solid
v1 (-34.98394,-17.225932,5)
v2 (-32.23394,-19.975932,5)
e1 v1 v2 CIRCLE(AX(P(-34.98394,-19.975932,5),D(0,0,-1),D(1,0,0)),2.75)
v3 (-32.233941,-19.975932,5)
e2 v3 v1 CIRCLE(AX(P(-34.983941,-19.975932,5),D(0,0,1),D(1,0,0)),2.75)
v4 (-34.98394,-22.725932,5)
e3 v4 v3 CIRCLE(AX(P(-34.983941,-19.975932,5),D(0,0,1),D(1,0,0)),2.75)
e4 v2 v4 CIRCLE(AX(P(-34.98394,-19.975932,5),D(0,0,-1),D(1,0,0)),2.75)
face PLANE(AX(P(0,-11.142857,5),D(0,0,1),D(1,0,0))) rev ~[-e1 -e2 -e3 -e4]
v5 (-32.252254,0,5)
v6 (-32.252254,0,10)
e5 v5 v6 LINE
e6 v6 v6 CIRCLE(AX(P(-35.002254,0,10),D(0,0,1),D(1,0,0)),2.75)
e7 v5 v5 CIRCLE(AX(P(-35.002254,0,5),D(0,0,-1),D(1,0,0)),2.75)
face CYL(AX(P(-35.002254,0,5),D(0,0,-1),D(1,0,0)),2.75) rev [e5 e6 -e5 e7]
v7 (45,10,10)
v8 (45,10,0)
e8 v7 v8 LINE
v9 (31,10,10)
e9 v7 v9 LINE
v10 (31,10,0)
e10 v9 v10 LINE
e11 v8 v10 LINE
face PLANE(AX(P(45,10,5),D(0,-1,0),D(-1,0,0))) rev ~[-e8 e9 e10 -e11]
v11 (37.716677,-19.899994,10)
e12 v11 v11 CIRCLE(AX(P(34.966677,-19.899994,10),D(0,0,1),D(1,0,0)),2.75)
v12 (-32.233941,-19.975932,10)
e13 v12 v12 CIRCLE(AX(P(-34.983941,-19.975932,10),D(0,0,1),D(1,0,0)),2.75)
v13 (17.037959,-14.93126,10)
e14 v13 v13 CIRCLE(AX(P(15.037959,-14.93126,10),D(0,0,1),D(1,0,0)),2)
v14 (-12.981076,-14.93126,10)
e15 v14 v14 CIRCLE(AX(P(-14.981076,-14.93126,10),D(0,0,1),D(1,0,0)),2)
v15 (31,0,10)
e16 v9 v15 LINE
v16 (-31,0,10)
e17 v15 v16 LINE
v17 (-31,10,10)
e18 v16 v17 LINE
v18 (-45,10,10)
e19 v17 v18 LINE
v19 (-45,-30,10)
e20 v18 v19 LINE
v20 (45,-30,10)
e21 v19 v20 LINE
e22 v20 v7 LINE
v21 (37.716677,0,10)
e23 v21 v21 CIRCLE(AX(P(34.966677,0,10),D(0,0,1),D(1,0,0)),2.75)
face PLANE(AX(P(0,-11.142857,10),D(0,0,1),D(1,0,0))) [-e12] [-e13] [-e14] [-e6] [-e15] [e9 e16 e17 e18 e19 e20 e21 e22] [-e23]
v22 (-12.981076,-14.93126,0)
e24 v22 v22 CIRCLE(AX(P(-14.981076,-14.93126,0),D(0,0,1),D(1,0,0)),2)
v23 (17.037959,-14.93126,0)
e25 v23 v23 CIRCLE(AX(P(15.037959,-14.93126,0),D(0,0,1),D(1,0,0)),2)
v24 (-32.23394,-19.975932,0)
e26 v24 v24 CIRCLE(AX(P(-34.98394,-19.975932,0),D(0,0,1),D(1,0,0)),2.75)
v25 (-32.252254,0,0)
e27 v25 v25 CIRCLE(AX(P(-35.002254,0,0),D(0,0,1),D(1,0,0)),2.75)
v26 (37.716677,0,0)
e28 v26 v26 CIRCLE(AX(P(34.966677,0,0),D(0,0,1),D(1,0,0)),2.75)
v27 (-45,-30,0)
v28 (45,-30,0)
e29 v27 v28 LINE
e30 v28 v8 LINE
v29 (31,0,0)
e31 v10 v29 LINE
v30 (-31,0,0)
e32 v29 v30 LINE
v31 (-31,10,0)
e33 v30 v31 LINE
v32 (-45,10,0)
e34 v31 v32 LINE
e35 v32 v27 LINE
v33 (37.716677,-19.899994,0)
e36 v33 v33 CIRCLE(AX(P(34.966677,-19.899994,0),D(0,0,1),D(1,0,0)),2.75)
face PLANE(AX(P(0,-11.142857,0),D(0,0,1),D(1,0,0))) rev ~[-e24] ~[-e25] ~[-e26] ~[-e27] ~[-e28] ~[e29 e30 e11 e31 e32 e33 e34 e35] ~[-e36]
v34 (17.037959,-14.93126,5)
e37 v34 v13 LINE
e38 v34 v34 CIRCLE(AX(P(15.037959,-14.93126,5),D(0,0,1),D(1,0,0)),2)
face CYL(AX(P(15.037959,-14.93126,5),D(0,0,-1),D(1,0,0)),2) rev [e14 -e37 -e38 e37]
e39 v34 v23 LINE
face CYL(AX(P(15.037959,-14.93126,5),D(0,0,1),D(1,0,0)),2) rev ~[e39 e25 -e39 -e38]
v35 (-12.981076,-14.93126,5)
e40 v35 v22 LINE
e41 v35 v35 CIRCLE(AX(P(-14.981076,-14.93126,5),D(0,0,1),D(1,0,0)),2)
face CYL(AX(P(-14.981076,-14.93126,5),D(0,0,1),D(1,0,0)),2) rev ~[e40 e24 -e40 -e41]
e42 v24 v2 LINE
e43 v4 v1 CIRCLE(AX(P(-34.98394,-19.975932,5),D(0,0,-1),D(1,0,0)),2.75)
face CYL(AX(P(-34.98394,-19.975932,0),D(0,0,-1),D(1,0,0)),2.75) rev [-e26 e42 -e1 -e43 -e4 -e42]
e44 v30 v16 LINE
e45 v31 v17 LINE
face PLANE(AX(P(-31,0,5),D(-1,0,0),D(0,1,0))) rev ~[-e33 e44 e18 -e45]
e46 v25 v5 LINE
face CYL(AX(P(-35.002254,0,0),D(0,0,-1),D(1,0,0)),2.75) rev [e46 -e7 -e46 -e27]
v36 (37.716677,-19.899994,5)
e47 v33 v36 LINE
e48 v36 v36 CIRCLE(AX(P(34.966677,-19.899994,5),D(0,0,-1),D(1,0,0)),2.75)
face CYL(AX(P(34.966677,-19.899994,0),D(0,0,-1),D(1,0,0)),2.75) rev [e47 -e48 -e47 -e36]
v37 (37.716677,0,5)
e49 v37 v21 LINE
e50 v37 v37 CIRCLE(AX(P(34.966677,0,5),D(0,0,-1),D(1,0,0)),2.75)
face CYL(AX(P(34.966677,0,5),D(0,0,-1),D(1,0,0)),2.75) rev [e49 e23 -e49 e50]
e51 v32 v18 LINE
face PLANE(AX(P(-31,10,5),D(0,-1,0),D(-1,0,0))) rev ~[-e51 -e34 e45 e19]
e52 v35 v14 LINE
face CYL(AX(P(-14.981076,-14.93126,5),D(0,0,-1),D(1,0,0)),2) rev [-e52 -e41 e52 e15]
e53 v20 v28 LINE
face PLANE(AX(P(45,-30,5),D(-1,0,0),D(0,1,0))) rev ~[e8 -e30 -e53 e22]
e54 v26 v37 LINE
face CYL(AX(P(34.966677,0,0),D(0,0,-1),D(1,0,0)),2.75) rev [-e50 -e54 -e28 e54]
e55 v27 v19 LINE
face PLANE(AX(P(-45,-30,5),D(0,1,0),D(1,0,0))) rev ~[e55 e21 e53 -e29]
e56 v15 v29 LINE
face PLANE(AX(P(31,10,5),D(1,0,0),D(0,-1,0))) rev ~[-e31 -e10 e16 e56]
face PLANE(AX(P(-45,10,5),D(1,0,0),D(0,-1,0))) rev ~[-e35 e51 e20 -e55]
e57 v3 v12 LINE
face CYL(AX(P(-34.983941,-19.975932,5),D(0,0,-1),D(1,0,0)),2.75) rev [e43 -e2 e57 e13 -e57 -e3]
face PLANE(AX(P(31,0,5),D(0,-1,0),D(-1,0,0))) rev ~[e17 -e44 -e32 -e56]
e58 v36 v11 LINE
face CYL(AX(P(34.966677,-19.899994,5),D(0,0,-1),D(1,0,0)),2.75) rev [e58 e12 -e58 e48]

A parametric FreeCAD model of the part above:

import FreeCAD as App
import Part
import Sketcher
from FreeCAD import Vector
Q = App.Units.Quantity


def add_polygon(sketch, points):
    """Adds a closed chain of lines whose ends are joined by coincident constraints."""
    first, n = sketch.GeometryCount, len(points)
    for a, b in zip(points, points[1:] + points[:1]):
        sketch.addGeometry(Part.LineSegment(App.Vector(*a, 0), App.Vector(*b, 0)), False)
    for i in range(n):
        sketch.addConstraint(Sketcher.Constraint("Coincident", first + i, 2, first + (i + 1) % n, 1))

doc = App.newDocument("Part")
body = doc.addObject("PartDesign::Body", "Body")

# Sketch on XY plane
sketch1 = body.newObject("Sketcher::SketchObject", "Sketch")
sketch1.AttachmentSupport = (doc.getObject("XY_Plane"), [""])
sketch1.MapMode = "FlatFace"
add_polygon(sketch1, [(31, 0), (-31, 0), (-31, 10), (-45, 10), (-45, -30), (45, -30), (45, 10), (31, 10)])  # lines 0-7
sketch1.addConstraint([
    Sketcher.Constraint("Horizontal", 0),
    Sketcher.Constraint("Vertical", 1),
    Sketcher.Constraint("Horizontal", 2),
    Sketcher.Constraint("Vertical", 3),
    Sketcher.Constraint("Horizontal", 4),
    Sketcher.Constraint("Vertical", 5),
    Sketcher.Constraint("Horizontal", 6),
    Sketcher.Constraint("Vertical", 7),
    Sketcher.Constraint("Symmetric", 0, 2, 7, 2, -1, 1),
    Sketcher.Constraint("Symmetric", 2, 2, 5, 2, -2),
    Sketcher.Constraint("DistanceX", 0, 2, 0, 1, Q("62 mm")),
    Sketcher.Constraint("DistanceX", 2, 2, 2, 1, Q("14 mm")),
    Sketcher.Constraint("DistanceY", 1, 1, 1, 2, Q("10 mm")),
    Sketcher.Constraint("DistanceY", 3, 2, 3, 1, Q("40 mm")),
])
pad1 = body.newObject("PartDesign::Pad", "Pad")
pad1.Profile = sketch1
pad1.Length = 5

# Sketch on XY plane
sketch2 = body.newObject("Sketcher::SketchObject", "Sketch001")
sketch2.AttachmentSupport = (doc.getObject("XY_Plane"), [""])
sketch2.MapMode = "FlatFace"
sketch2.addGeometry([
    Part.Circle(Vector(-34.98394, -19.975932, 0), Vector(0, 0, 1), 2.75),
    Part.Circle(Vector(-35.002254, 0, 0), Vector(0, 0, 1), 2.75),
    Part.Circle(Vector(34.966677, 0, 0), Vector(0, 0, 1), 2.75),
    Part.Circle(Vector(34.966677, -19.899994, 0), Vector(0, 0, 1), 2.75),
], False)
sketch2.addConstraint([
    Sketcher.Constraint("Equal", 0, 1),
    Sketcher.Constraint("Equal", 1, 2),
    Sketcher.Constraint("Equal", 2, 3),
    Sketcher.Constraint("PointOnObject", 1, 3, -1),
    Sketcher.Constraint("PointOnObject", 2, 3, -1),
    Sketcher.Constraint("Vertical", 2, 3, 3, 3),
    Sketcher.Constraint("Diameter", 0, Q("5.5 mm")),
    Sketcher.Constraint("DistanceX", 0, 3, -1, 1, Q("34.98394 mm")),
    Sketcher.Constraint("DistanceY", 0, 3, -1, 1, Q("19.975932 mm")),
    Sketcher.Constraint("DistanceX", 1, 3, 2, 3, Q("69.968931 mm")),
    Sketcher.Constraint("DistanceY", 0, 3, 3, 3, Q("0.075938 mm")),
    Sketcher.Constraint("DistanceX", 1, 3, -1, 1, Q("35.002254 mm")),
])
pocket1 = body.newObject("PartDesign::Pocket", "Pocket")
pocket1.Profile = sketch2
pocket1.Length = 58.2
pocket1.Reversed = True

# Sketch on XY plane
sketch3 = body.newObject("Sketcher::SketchObject", "Sketch002")
sketch3.AttachmentSupport = (doc.getObject("XY_Plane"), [""])
sketch3.MapMode = "FlatFace"
sketch3.AttachmentOffset = App.Placement(Vector(0, 0, 5), App.Rotation())
sketch3.addGeometry([
    Part.Circle(Vector(-14.981076, -14.93126, 0), Vector(0, 0, 1), 2),
    Part.Circle(Vector(15.037959, -14.93126, 0), Vector(0, 0, 1), 2),
], False)
sketch3.addConstraint([
    Sketcher.Constraint("Equal", 0, 1),
    Sketcher.Constraint("Horizontal", 0, 3, 1, 3),
    Sketcher.Constraint("Diameter", 0, Q("4 mm")),
    Sketcher.Constraint("DistanceY", 0, 3, -1, 1, Q("14.93126 mm")),
    Sketcher.Constraint("DistanceX", -1, 1, 1, 3, Q("15.037959 mm")),
    Sketcher.Constraint("DistanceX", 0, 3, -1, 1, Q("14.981076 mm")),
])
pocket2 = body.newObject("PartDesign::Pocket", "Pocket001")
pocket2.Profile = sketch3
pocket2.Length = 25

# Sketch on XY plane
sketch4 = body.newObject("Sketcher::SketchObject", "Sketch003")
sketch4.AttachmentSupport = (doc.getObject("XY_Plane"), [""])
sketch4.MapMode = "FlatFace"
sketch4.AttachmentOffset = App.Placement(Vector(0, 0, 5), App.Rotation())
add_polygon(sketch4, [(31, 0), (-31, 0), (-31, 10), (-45, 10), (-45, -30), (45, -30), (45, 10), (31, 10)])  # lines 0-7
sketch4.addGeometry(Part.Circle(Vector(-34.983941, -19.975932, 0), Vector(0, 0, 1), 2.75), False)  # 8
sketch4.addGeometry(Part.Circle(Vector(-14.981076, -14.93126, 0), Vector(0, 0, 1), 2), False)  # 9
sketch4.addGeometry(Part.Circle(Vector(34.966677, -19.899994, 0), Vector(0, 0, 1), 2.75), False)  # 10
sketch4.addGeometry(Part.Circle(Vector(15.037959, -14.93126, 0), Vector(0, 0, 1), 2), False)  # 11
sketch4.addGeometry(Part.Circle(Vector(-35.002254, 0, 0), Vector(0, 0, 1), 2.75), False)  # 12
sketch4.addGeometry(Part.Circle(Vector(34.966677, 0, 0), Vector(0, 0, 1), 2.75), False)  # 13
sketch4.addConstraint([
    Sketcher.Constraint("Horizontal", 0),
    Sketcher.Constraint("Vertical", 1),
    Sketcher.Constraint("Horizontal", 2),
    Sketcher.Constraint("Vertical", 3),
    Sketcher.Constraint("Horizontal", 4),
    Sketcher.Constraint("Vertical", 5),
    Sketcher.Constraint("Horizontal", 6),
    Sketcher.Constraint("Vertical", 7),
    Sketcher.Constraint("Equal", 8, 10),
    Sketcher.Constraint("Equal", 9, 11),
    Sketcher.Constraint("Equal", 10, 12),
    Sketcher.Constraint("Equal", 12, 13),
    Sketcher.Constraint("Symmetric", 0, 2, 7, 2, -1, 1),
    Sketcher.Constraint("Symmetric", 2, 2, 5, 2, -2),
    Sketcher.Constraint("PointOnObject", 12, 3, -1),
    Sketcher.Constraint("PointOnObject", 13, 3, -1),
    Sketcher.Constraint("Horizontal", 9, 3, 11, 3),
    Sketcher.Constraint("Vertical", 10, 3, 13, 3),
    Sketcher.Constraint("Diameter", 9, Q("4 mm")),
    Sketcher.Constraint("Diameter", 8, Q("5.5 mm")),
    Sketcher.Constraint("DistanceX", 0, 2, 0, 1, Q("62 mm")),
    Sketcher.Constraint("DistanceX", 2, 2, 2, 1, Q("14 mm")),
    Sketcher.Constraint("DistanceY", 1, 1, 1, 2, Q("10 mm")),
    Sketcher.Constraint("DistanceY", 3, 2, 3, 1, Q("40 mm")),
    Sketcher.Constraint("DistanceX", 8, 3, 11, 3, Q("50.0219 mm")),
    Sketcher.Constraint("DistanceX", 8, 3, -1, 1, Q("34.983941 mm")),
    Sketcher.Constraint("DistanceY", 8, 3, -1, 1, Q("19.975932 mm")),
    Sketcher.Constraint("DistanceY", 9, 3, -1, 1, Q("14.93126 mm")),
    Sketcher.Constraint("DistanceY", 8, 3, 10, 3, Q("0.075938 mm")),
    Sketcher.Constraint("DistanceX", 12, 3, 10, 3, Q("69.968931 mm")),
    Sketcher.Constraint("DistanceX", 9, 3, -1, 1, Q("14.981076 mm")),
    Sketcher.Constraint("DistanceX", -1, 1, 10, 3, Q("34.966677 mm")),
])
pad2 = body.newObject("PartDesign::Pad", "Pad001")
pad2.Profile = sketch4
pad2.Length = 5

doc.recompute()
